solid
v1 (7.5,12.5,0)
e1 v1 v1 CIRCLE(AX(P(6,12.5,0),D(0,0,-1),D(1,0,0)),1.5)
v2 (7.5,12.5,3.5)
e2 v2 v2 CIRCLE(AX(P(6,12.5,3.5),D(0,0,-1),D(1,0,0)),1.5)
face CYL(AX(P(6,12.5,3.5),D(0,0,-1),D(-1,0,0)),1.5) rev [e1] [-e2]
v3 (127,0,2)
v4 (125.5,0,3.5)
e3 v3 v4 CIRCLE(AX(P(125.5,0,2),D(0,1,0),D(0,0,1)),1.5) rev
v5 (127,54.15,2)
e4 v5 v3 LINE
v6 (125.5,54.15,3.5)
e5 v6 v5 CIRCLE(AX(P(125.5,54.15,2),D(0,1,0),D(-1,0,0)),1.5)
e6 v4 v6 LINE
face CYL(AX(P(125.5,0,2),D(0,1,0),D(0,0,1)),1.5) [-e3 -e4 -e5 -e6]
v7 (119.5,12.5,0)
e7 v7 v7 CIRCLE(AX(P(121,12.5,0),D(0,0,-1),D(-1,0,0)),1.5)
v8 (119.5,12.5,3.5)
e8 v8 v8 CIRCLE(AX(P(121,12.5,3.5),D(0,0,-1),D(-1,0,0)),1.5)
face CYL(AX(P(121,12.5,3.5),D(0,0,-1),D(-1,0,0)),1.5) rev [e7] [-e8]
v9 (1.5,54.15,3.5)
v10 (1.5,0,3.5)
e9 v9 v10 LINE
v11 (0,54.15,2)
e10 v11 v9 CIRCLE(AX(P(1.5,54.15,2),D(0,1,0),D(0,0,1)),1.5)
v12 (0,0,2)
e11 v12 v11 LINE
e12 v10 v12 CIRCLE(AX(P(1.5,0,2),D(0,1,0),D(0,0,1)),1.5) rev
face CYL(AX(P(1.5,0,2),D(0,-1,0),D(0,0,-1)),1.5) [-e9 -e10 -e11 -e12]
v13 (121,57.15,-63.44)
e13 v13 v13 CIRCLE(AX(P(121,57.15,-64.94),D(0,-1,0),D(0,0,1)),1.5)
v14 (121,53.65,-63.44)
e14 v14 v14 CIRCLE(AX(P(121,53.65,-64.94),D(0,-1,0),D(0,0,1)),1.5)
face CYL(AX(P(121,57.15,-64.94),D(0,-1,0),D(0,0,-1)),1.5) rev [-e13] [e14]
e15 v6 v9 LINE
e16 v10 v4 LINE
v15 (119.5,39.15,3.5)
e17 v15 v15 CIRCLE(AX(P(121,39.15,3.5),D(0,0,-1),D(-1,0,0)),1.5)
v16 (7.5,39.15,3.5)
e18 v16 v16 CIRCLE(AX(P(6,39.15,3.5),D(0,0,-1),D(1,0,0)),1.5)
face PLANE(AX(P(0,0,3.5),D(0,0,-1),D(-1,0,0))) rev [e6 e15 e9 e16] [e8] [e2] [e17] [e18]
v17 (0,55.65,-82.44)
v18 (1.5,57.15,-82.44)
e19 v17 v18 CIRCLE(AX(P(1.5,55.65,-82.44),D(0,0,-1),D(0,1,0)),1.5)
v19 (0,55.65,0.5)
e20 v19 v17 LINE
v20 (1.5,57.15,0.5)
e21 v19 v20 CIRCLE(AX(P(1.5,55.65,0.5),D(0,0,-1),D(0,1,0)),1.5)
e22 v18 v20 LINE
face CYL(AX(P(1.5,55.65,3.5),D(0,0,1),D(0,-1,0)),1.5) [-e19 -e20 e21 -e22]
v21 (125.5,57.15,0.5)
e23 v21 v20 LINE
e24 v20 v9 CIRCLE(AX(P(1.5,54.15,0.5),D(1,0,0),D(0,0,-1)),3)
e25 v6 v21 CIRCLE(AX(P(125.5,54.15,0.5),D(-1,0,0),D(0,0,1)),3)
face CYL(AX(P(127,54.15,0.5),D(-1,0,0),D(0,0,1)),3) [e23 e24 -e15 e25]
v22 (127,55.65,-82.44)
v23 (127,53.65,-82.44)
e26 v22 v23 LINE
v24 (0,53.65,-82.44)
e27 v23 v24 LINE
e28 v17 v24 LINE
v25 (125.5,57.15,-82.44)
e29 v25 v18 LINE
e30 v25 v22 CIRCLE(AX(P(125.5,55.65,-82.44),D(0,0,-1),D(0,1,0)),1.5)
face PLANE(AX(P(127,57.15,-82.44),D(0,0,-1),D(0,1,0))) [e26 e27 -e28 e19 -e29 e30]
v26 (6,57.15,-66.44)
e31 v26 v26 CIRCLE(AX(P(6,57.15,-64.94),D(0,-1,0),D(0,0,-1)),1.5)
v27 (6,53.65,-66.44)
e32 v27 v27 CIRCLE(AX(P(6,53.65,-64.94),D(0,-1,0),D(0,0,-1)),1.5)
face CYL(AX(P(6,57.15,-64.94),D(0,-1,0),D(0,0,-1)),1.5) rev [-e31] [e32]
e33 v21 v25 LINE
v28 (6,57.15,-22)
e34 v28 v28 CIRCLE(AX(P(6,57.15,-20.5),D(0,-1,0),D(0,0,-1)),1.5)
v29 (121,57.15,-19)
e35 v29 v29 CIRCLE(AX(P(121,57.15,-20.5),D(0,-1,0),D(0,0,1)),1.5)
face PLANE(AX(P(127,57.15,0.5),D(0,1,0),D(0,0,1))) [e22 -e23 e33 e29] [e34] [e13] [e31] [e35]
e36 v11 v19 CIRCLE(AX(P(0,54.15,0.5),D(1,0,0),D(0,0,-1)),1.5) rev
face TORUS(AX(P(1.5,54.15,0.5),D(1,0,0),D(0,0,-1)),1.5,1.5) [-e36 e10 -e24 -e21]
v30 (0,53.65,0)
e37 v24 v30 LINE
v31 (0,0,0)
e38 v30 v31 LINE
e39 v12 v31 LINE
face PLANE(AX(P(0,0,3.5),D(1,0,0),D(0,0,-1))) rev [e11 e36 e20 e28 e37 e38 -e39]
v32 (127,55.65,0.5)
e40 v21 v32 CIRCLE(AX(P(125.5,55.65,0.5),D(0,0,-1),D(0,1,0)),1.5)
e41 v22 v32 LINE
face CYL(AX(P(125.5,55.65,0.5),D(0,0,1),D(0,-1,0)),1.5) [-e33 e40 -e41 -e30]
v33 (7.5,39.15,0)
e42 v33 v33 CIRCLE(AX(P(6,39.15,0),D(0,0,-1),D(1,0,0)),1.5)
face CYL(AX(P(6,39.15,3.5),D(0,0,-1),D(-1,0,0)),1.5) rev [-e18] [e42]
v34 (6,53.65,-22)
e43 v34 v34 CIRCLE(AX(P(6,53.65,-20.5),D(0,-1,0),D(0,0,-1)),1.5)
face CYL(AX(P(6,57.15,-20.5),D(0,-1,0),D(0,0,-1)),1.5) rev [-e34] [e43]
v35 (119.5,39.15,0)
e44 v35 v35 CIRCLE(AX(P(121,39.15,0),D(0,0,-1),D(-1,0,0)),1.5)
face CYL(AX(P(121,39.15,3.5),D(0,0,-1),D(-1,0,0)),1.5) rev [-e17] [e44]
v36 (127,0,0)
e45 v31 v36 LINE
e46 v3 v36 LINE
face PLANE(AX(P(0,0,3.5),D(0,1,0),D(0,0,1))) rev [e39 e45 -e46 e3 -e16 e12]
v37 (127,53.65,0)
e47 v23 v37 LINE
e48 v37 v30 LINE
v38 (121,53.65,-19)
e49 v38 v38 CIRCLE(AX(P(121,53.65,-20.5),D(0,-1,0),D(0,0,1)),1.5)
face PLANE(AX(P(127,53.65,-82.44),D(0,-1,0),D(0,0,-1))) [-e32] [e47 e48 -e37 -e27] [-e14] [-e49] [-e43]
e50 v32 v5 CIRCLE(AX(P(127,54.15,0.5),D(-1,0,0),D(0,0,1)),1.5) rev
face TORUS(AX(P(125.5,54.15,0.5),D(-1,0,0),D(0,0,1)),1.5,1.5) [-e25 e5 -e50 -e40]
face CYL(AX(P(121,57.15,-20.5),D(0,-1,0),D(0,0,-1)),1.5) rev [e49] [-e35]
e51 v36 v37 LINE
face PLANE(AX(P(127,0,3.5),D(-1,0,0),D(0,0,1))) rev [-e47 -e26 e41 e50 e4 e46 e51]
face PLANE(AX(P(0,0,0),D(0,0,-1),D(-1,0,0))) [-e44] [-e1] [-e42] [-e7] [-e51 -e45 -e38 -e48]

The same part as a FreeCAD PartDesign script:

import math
import FreeCAD as App
import Part
import Sketcher


def edges_at(feature, points):
    """Names of the edges that pass closest to the given points."""
    edges = feature.Shape.Edges
    near = lambda p: min(range(len(edges)), key=lambda i: edges[i].distToShape(Part.Vertex(*p))[0])
    return sorted({f"Edge{near(p) + 1}" for p in points})


def add_polygon(sketch, points):
    """Adds a closed chain of lines whose ends are joined by coincident constraints."""
    first, n = sketch.GeometryCount, len(points)
    for a, b in zip(points, points[1:] + points[:1]):
        sketch.addGeometry(Part.LineSegment(App.Vector(*a, 0), App.Vector(*b, 0)), False)
    for i in range(n):
        sketch.addConstraint(Sketcher.Constraint("Coincident", first + i, 2, first + (i + 1) % n, 1))

doc = App.newDocument("Part")
body = doc.addObject("PartDesign::Body", "Body")

# Sketch on XY plane
sketch1 = body.newObject("Sketcher::SketchObject", "Sketch")
sketch1.AttachmentSupport = (doc.getObject("XY_Plane"), [""])
sketch1.MapMode = "FlatFace"
add_polygon(sketch1, [(0, 53.65), (0, 0), (127, 0), (127, 53.65)])  # lines 0-3
sketch1.addConstraint(Sketcher.Constraint("Vertical", 0))
sketch1.addConstraint(Sketcher.Constraint("Horizontal", 1))
sketch1.addConstraint(Sketcher.Constraint("Vertical", 2))
sketch1.addConstraint(Sketcher.Constraint("Horizontal", 3))
sketch1.addConstraint(Sketcher.Constraint("Coincident", 0, 2, -1, 1))
sketch1.addConstraint(Sketcher.Constraint("DistanceX", 1, 1, 1, 2, 127.0))
sketch1.addConstraint(Sketcher.Constraint("DistanceY", 0, 2, 0, 1, 53.65))
pad1 = body.newObject("PartDesign::Pad", "Pad")
pad1.Profile = sketch1
pad1.Length = 3.5

# Sketch on YZ plane
sketch2 = body.newObject("Sketcher::SketchObject", "Sketch001")
sketch2.AttachmentSupport = (doc.getObject("YZ_Plane"), [""])
sketch2.MapMode = "FlatFace"
sketch2.addGeometry(Part.LineSegment(App.Vector(53.65, 3.5, 0), App.Vector(54.15, 3.5, 0)), False)
sketch2.addGeometry(Part.ArcOfCircle(Part.Circle(App.Vector(54.15, 0.5, 0), App.Vector(0, 0, 1), 3), math.radians(0), math.radians(90)), False)
sketch2.addGeometry(Part.LineSegment(App.Vector(57.15, 0.5, 0), App.Vector(57.15, -82.44, 0)), False)
sketch2.addGeometry(Part.LineSegment(App.Vector(57.15, -82.44, 0), App.Vector(53.65, -82.44, 0)), False)
sketch2.addGeometry(Part.LineSegment(App.Vector(53.65, -82.44, 0), App.Vector(53.65, 3.5, 0)), False)
sketch2.addConstraint(Sketcher.Constraint("Tangent", 0, 2, 1, 2))
sketch2.addConstraint(Sketcher.Constraint("Tangent", 1, 1, 2, 1))
sketch2.addConstraint(Sketcher.Constraint("Coincident", 2, 2, 3, 1))
sketch2.addConstraint(Sketcher.Constraint("Coincident", 3, 2, 4, 1))
sketch2.addConstraint(Sketcher.Constraint("Coincident", 4, 2, 0, 1))
sketch2.addConstraint(Sketcher.Constraint("Horizontal", 0))
sketch2.addConstraint(Sketcher.Constraint("Vertical", 2))
sketch2.addConstraint(Sketcher.Constraint("Horizontal", 3))
sketch2.addConstraint(Sketcher.Constraint("Vertical", 4))
sketch2.addConstraint(Sketcher.Constraint("Radius", 1, 3.0))
sketch2.addConstraint(Sketcher.Constraint("DistanceX", 0, 1, 0, 2, 0.5))
sketch2.addConstraint(Sketcher.Constraint("DistanceY", 2, 2, 2, 1, 82.94))
sketch2.addConstraint(Sketcher.Constraint("DistanceY", -1, 1, 1, 3, 0.5))
sketch2.addConstraint(Sketcher.Constraint("DistanceX", -1, 1, 1, 3, 54.15))
pad2 = body.newObject("PartDesign::Pad", "Pad001")
pad2.Profile = sketch2
pad2.Length = 127

# Sketch on XY plane
sketch3 = body.newObject("Sketcher::SketchObject", "Sketch002")
sketch3.AttachmentSupport = (doc.getObject("XY_Plane"), [""])
sketch3.MapMode = "FlatFace"
sketch3.addGeometry(Part.Circle(App.Vector(121, 39.15, 0), App.Vector(0, 0, 1), 1.5), False)
sketch3.addGeometry(Part.Circle(App.Vector(121, 12.5, 0), App.Vector(0, 0, 1), 1.5), False)
sketch3.addGeometry(Part.Circle(App.Vector(6, 12.5, 0), App.Vector(0, 0, 1), 1.5), False)
sketch3.addGeometry(Part.Circle(App.Vector(6, 39.15, 0), App.Vector(0, 0, 1), 1.5), False)
sketch3.addConstraint(Sketcher.Constraint("Equal", 0, 1))
sketch3.addConstraint(Sketcher.Constraint("Equal", 1, 2))
sketch3.addConstraint(Sketcher.Constraint("Equal", 2, 3))
sketch3.addConstraint(Sketcher.Constraint("Horizontal", 1, 3, 2, 3))
sketch3.addConstraint(Sketcher.Constraint("Horizontal", 0, 3, 3, 3))
sketch3.addConstraint(Sketcher.Constraint("Vertical", 0, 3, 1, 3))
sketch3.addConstraint(Sketcher.Constraint("Vertical", 2, 3, 3, 3))
sketch3.addConstraint(Sketcher.Constraint("Diameter", 0, 3.0))
sketch3.addConstraint(Sketcher.Constraint("DistanceX", -1, 1, 0, 3, 121.0))
sketch3.addConstraint(Sketcher.Constraint("DistanceX", -1, 1, 2, 3, 6.0))
sketch3.addConstraint(Sketcher.Constraint("DistanceY", -1, 1, 1, 3, 12.5))
sketch3.addConstraint(Sketcher.Constraint("DistanceY", -1, 1, 0, 3, 39.15))
pocket1 = body.newObject("PartDesign::Pocket", "Pocket")
pocket1.Profile = sketch3
pocket1.Length = 3.5
pocket1.Reversed = True

# Sketch on XZ plane
sketch4 = body.newObject("Sketcher::SketchObject", "Sketch003")
sketch4.AttachmentSupport = (doc.getObject("XZ_Plane"), [""])
sketch4.MapMode = "FlatFace"
sketch4.AttachmentOffset = App.Placement(App.Vector(0, 0, -53.65), App.Rotation())
sketch4.addGeometry(Part.Circle(App.Vector(6, -20.5, 0), App.Vector(0, 0, 1), 1.5), False)
sketch4.addGeometry(Part.Circle(App.Vector(6, -64.94, 0), App.Vector(0, 0, 1), 1.5), False)
sketch4.addGeometry(Part.Circle(App.Vector(121, -64.94, 0), App.Vector(0, 0, 1), 1.5), False)
sketch4.addGeometry(Part.Circle(App.Vector(121, -20.5, 0), App.Vector(0, 0, 1), 1.5), False)
sketch4.addConstraint(Sketcher.Constraint("Equal", 0, 1))
sketch4.addConstraint(Sketcher.Constraint("Equal", 1, 2))
sketch4.addConstraint(Sketcher.Constraint("Equal", 2, 3))
sketch4.addConstraint(Sketcher.Constraint("Horizontal", 1, 3, 2, 3))
sketch4.addConstraint(Sketcher.Constraint("Horizontal", 0, 3, 3, 3))
sketch4.addConstraint(Sketcher.Constraint("Vertical", 0, 3, 1, 3))
sketch4.addConstraint(Sketcher.Constraint("Vertical", 2, 3, 3, 3))
sketch4.addConstraint(Sketcher.Constraint("Diameter", 0, 3.0))
sketch4.addConstraint(Sketcher.Constraint("DistanceX", -1, 1, 0, 3, 6.0))
sketch4.addConstraint(Sketcher.Constraint("DistanceX", -1, 1, 2, 3, 121.0))
sketch4.addConstraint(Sketcher.Constraint("DistanceY", 0, 3, -1, 1, 20.5))
sketch4.addConstraint(Sketcher.Constraint("DistanceY", 1, 3, -1, 1, 64.94))
pocket2 = body.newObject("PartDesign::Pocket", "Pocket001")
pocket2.Profile = sketch4
pocket2.Length = 3.5
doc.recompute()

fillet = body.newObject("PartDesign::Fillet", "Fillet")
fillet.Base = (pocket2, edges_at(pocket2, [(127, 27.075, 3.5), (127, 57.15, -40.97), (127, 56.271, 2.621)]))
fillet.Radius = 1.5
doc.recompute()

fillet2 = body.newObject("PartDesign::Fillet", "Fillet001")
fillet2.Base = (fillet, edges_at(fillet, [(0, 56.271, 2.621), (0, 57.15, -40.97), (0, 27.075, 3.5)]))
fillet2.Radius = 1.5

doc.recompute()
